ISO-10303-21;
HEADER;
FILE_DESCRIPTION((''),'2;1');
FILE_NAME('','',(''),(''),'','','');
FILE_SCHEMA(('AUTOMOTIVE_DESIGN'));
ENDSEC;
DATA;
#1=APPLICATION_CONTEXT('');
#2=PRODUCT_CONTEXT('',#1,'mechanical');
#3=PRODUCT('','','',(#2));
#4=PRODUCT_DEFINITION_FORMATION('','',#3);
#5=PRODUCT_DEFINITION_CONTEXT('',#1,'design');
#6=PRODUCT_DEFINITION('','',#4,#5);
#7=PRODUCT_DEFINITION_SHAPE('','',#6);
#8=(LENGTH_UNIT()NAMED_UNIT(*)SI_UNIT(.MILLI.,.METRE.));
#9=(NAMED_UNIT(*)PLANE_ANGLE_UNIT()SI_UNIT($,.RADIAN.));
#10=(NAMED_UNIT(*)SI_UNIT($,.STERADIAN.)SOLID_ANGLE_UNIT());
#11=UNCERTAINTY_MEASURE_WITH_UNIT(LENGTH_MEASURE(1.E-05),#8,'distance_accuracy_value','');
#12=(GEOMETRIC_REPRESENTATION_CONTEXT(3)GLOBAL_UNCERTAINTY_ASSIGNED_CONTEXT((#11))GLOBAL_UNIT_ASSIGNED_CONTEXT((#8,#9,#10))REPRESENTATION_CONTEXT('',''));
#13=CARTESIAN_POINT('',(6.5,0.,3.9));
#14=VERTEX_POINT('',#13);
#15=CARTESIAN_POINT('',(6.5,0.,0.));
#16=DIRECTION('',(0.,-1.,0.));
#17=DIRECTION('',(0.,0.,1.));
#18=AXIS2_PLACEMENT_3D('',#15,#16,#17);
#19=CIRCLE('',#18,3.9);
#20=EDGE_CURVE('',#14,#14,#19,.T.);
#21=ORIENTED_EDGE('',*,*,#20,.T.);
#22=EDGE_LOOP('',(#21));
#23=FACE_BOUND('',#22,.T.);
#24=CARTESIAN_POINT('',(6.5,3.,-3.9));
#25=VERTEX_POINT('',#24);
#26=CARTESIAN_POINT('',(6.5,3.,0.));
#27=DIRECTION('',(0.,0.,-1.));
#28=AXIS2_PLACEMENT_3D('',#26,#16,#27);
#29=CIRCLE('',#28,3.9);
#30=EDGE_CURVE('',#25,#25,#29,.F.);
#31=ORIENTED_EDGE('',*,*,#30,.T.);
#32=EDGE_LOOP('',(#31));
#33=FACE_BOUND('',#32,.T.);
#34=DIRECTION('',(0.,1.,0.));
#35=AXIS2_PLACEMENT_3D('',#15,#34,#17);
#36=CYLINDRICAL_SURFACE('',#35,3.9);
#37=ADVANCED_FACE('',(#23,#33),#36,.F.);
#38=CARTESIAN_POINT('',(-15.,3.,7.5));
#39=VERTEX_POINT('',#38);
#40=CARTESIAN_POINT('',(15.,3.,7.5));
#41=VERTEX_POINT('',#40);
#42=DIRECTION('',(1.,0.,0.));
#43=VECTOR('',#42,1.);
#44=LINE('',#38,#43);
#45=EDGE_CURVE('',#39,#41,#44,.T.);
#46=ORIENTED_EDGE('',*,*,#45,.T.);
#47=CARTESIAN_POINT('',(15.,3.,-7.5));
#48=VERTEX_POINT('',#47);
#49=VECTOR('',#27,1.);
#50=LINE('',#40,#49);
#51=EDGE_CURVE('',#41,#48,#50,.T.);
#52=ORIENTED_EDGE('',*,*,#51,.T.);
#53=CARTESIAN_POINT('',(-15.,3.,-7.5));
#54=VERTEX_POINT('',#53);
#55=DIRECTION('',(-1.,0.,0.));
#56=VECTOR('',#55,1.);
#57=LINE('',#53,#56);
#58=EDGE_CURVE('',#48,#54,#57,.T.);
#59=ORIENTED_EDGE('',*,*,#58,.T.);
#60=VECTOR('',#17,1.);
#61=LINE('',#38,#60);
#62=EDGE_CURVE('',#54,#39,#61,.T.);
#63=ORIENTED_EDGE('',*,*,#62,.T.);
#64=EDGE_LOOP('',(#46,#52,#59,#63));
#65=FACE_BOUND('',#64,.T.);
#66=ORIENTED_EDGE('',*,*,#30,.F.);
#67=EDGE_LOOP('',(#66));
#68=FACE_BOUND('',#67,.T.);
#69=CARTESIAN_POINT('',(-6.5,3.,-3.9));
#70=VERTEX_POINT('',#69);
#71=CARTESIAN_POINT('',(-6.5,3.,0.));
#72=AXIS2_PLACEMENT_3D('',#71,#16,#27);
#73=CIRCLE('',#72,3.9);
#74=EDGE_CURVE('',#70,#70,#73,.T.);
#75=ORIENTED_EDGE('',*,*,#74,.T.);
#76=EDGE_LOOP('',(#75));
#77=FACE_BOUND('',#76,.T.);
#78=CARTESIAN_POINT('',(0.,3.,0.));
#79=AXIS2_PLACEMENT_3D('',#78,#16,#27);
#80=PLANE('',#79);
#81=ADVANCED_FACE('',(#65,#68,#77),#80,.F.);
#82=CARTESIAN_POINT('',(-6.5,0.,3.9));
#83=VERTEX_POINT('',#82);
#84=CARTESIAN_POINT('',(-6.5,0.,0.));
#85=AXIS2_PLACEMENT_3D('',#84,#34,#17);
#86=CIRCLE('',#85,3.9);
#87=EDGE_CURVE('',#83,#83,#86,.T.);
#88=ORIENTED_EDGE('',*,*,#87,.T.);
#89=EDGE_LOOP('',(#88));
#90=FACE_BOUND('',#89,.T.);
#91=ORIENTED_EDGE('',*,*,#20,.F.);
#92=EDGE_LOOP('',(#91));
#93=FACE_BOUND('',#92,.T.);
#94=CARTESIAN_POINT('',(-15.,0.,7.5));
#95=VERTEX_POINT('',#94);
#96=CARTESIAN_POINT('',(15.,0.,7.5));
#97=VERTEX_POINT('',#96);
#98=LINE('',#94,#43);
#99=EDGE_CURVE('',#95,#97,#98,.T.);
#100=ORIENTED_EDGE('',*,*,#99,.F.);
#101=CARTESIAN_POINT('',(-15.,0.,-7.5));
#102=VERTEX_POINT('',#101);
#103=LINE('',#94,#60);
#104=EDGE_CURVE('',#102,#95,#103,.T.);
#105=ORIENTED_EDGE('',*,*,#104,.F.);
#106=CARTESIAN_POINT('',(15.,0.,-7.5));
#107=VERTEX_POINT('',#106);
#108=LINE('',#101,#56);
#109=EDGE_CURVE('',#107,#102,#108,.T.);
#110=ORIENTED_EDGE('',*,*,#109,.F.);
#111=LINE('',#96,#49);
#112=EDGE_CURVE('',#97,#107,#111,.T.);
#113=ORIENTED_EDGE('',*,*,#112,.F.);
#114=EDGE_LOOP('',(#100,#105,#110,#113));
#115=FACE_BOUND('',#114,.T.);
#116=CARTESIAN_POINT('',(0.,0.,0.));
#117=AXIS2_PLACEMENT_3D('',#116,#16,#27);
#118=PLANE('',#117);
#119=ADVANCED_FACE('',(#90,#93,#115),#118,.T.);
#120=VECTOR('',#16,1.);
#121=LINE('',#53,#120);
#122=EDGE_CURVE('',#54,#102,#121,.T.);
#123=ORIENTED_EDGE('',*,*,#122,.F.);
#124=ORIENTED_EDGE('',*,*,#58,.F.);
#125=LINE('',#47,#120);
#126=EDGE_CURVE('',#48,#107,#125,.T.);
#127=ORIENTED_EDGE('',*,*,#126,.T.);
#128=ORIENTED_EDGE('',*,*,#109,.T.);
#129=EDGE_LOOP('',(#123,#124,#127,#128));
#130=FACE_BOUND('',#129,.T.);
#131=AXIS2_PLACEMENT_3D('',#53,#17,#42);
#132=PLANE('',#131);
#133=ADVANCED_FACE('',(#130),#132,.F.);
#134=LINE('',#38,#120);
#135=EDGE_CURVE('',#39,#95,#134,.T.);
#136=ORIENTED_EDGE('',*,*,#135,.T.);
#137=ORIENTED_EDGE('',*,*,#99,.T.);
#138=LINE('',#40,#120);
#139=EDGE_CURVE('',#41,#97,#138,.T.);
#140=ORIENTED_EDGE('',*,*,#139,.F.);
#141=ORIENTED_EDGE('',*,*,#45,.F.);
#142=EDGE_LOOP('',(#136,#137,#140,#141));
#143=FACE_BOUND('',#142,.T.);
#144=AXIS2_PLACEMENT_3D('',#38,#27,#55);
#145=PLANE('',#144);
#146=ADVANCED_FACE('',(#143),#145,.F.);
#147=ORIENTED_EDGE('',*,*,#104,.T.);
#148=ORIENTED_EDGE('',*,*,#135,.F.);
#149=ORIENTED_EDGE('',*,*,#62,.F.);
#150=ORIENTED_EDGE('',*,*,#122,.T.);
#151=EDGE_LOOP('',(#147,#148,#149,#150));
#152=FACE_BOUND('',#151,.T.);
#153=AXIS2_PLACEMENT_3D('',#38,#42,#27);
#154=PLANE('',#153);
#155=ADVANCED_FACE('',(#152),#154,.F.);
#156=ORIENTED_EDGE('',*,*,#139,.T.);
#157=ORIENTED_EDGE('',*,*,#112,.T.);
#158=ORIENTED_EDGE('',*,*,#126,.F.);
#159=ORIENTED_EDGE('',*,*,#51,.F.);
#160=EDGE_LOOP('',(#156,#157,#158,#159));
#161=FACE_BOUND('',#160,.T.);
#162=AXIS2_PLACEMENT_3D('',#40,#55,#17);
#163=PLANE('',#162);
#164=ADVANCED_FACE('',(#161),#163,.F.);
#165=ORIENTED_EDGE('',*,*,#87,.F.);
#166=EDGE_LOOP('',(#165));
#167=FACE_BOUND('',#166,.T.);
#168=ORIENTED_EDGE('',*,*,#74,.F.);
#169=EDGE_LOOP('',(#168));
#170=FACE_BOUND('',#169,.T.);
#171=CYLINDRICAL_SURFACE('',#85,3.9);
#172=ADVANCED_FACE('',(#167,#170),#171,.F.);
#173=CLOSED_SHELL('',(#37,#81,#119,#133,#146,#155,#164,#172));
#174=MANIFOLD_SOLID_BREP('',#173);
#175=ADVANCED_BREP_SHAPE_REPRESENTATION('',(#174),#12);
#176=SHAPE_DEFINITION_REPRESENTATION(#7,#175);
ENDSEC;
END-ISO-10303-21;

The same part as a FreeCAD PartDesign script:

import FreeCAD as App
import Part
import Sketcher

V = App.Vector


def add_polygon(sketch, points):
    """Adds a closed chain of lines whose ends are joined by coincident constraints."""
    first, n = sketch.GeometryCount, len(points)
    for a, b in zip(points, points[1:] + points[:1]):
        sketch.addGeometry(Part.LineSegment(App.Vector(*a, 0), App.Vector(*b, 0)), False)
    for i in range(n):
        sketch.addConstraint(Sketcher.Constraint("Coincident", first + i, 2, first + (i + 1) % n, 1))

doc = App.newDocument("Part")
params = doc.addObject("Spreadsheet::Sheet", "Params")
for row, (alias, value) in enumerate([
    ("sketch1_width", "30 mm"),
    ("sketch1_height", "15 mm"),
    ("pad1_length", "3 mm"),
    ("sketch2_diameter", "7.8 mm"),
    ("pocket1_length", "5 mm"),
], start=1):
    params.set(f"A{row}", alias)
    params.set(f"B{row}", "=" + value)
    params.setAlias(f"B{row}", alias)

body = doc.addObject("PartDesign::Body", "Body")

# Sketch on XZ plane
sketch1 = body.newObject("Sketcher::SketchObject", "Sketch")
sketch1.AttachmentSupport = (doc.getObject("XZ_Plane"), [""])
sketch1.MapMode = "FlatFace"
add_polygon(sketch1, [(-15, -8), (-15, 8), (15, 8), (15, -8)])  # lines 0-3
sketch1.addConstraint([
    Sketcher.Constraint("Vertical", 0),
    Sketcher.Constraint("Horizontal", 1),
    Sketcher.Constraint("Vertical", 2),
    Sketcher.Constraint("Horizontal", 3),
    Sketcher.Constraint("Symmetric", 0, 2, 2, 2, -1, 1),
    Sketcher.Constraint("DistanceX", 1, 1, 1, 2, 30.0),
    Sketcher.Constraint("DistanceY", 0, 1, 0, 2, 15.0),
])
sketch1.setExpression("Constraints[9]", "Params.sketch1_width")
sketch1.setExpression("Constraints[10]", "Params.sketch1_height")
pad1 = body.newObject("PartDesign::Pad", "Pad")
pad1.Profile = sketch1
pad1.setExpression("Length", "Params.pad1_length")
pad1.Reversed = True

# Sketch on XZ plane
sketch2 = body.newObject("Sketcher::SketchObject", "Sketch001")
sketch2.AttachmentSupport = (doc.getObject("XZ_Plane"), [""])
sketch2.MapMode = "FlatFace"
sketch2.AttachmentOffset = App.Placement(V(0, 0, 1), App.Rotation())
sketch2.addGeometry(Part.Circle(V(-6.5, 0, 0), V(0, 0, 1), 3.9), False)
sketch2.addConstraint([
    Sketcher.Constraint("PointOnObject", 0, 3, -1),
    Sketcher.Constraint("Diameter", 0, 7.8),
    Sketcher.Constraint("DistanceX", 0, 3, -1, 1, 6.5),
])
sketch2.setExpression("Constraints[1]", "Params.sketch2_diameter")
pocket1 = body.newObject("PartDesign::Pocket", "Pocket")
pocket1.Profile = sketch2
pocket1.setExpression("Length", "Params.pocket1_length")
doc.recompute()

mirrored = body.newObject("PartDesign::Mirrored", "Mirrored")
mirrored.Originals = [pocket1]
mirrored.MirrorPlane = (doc.getObject("YZ_Plane"), [""])
body.Tip = mirrored

doc.recompute()
